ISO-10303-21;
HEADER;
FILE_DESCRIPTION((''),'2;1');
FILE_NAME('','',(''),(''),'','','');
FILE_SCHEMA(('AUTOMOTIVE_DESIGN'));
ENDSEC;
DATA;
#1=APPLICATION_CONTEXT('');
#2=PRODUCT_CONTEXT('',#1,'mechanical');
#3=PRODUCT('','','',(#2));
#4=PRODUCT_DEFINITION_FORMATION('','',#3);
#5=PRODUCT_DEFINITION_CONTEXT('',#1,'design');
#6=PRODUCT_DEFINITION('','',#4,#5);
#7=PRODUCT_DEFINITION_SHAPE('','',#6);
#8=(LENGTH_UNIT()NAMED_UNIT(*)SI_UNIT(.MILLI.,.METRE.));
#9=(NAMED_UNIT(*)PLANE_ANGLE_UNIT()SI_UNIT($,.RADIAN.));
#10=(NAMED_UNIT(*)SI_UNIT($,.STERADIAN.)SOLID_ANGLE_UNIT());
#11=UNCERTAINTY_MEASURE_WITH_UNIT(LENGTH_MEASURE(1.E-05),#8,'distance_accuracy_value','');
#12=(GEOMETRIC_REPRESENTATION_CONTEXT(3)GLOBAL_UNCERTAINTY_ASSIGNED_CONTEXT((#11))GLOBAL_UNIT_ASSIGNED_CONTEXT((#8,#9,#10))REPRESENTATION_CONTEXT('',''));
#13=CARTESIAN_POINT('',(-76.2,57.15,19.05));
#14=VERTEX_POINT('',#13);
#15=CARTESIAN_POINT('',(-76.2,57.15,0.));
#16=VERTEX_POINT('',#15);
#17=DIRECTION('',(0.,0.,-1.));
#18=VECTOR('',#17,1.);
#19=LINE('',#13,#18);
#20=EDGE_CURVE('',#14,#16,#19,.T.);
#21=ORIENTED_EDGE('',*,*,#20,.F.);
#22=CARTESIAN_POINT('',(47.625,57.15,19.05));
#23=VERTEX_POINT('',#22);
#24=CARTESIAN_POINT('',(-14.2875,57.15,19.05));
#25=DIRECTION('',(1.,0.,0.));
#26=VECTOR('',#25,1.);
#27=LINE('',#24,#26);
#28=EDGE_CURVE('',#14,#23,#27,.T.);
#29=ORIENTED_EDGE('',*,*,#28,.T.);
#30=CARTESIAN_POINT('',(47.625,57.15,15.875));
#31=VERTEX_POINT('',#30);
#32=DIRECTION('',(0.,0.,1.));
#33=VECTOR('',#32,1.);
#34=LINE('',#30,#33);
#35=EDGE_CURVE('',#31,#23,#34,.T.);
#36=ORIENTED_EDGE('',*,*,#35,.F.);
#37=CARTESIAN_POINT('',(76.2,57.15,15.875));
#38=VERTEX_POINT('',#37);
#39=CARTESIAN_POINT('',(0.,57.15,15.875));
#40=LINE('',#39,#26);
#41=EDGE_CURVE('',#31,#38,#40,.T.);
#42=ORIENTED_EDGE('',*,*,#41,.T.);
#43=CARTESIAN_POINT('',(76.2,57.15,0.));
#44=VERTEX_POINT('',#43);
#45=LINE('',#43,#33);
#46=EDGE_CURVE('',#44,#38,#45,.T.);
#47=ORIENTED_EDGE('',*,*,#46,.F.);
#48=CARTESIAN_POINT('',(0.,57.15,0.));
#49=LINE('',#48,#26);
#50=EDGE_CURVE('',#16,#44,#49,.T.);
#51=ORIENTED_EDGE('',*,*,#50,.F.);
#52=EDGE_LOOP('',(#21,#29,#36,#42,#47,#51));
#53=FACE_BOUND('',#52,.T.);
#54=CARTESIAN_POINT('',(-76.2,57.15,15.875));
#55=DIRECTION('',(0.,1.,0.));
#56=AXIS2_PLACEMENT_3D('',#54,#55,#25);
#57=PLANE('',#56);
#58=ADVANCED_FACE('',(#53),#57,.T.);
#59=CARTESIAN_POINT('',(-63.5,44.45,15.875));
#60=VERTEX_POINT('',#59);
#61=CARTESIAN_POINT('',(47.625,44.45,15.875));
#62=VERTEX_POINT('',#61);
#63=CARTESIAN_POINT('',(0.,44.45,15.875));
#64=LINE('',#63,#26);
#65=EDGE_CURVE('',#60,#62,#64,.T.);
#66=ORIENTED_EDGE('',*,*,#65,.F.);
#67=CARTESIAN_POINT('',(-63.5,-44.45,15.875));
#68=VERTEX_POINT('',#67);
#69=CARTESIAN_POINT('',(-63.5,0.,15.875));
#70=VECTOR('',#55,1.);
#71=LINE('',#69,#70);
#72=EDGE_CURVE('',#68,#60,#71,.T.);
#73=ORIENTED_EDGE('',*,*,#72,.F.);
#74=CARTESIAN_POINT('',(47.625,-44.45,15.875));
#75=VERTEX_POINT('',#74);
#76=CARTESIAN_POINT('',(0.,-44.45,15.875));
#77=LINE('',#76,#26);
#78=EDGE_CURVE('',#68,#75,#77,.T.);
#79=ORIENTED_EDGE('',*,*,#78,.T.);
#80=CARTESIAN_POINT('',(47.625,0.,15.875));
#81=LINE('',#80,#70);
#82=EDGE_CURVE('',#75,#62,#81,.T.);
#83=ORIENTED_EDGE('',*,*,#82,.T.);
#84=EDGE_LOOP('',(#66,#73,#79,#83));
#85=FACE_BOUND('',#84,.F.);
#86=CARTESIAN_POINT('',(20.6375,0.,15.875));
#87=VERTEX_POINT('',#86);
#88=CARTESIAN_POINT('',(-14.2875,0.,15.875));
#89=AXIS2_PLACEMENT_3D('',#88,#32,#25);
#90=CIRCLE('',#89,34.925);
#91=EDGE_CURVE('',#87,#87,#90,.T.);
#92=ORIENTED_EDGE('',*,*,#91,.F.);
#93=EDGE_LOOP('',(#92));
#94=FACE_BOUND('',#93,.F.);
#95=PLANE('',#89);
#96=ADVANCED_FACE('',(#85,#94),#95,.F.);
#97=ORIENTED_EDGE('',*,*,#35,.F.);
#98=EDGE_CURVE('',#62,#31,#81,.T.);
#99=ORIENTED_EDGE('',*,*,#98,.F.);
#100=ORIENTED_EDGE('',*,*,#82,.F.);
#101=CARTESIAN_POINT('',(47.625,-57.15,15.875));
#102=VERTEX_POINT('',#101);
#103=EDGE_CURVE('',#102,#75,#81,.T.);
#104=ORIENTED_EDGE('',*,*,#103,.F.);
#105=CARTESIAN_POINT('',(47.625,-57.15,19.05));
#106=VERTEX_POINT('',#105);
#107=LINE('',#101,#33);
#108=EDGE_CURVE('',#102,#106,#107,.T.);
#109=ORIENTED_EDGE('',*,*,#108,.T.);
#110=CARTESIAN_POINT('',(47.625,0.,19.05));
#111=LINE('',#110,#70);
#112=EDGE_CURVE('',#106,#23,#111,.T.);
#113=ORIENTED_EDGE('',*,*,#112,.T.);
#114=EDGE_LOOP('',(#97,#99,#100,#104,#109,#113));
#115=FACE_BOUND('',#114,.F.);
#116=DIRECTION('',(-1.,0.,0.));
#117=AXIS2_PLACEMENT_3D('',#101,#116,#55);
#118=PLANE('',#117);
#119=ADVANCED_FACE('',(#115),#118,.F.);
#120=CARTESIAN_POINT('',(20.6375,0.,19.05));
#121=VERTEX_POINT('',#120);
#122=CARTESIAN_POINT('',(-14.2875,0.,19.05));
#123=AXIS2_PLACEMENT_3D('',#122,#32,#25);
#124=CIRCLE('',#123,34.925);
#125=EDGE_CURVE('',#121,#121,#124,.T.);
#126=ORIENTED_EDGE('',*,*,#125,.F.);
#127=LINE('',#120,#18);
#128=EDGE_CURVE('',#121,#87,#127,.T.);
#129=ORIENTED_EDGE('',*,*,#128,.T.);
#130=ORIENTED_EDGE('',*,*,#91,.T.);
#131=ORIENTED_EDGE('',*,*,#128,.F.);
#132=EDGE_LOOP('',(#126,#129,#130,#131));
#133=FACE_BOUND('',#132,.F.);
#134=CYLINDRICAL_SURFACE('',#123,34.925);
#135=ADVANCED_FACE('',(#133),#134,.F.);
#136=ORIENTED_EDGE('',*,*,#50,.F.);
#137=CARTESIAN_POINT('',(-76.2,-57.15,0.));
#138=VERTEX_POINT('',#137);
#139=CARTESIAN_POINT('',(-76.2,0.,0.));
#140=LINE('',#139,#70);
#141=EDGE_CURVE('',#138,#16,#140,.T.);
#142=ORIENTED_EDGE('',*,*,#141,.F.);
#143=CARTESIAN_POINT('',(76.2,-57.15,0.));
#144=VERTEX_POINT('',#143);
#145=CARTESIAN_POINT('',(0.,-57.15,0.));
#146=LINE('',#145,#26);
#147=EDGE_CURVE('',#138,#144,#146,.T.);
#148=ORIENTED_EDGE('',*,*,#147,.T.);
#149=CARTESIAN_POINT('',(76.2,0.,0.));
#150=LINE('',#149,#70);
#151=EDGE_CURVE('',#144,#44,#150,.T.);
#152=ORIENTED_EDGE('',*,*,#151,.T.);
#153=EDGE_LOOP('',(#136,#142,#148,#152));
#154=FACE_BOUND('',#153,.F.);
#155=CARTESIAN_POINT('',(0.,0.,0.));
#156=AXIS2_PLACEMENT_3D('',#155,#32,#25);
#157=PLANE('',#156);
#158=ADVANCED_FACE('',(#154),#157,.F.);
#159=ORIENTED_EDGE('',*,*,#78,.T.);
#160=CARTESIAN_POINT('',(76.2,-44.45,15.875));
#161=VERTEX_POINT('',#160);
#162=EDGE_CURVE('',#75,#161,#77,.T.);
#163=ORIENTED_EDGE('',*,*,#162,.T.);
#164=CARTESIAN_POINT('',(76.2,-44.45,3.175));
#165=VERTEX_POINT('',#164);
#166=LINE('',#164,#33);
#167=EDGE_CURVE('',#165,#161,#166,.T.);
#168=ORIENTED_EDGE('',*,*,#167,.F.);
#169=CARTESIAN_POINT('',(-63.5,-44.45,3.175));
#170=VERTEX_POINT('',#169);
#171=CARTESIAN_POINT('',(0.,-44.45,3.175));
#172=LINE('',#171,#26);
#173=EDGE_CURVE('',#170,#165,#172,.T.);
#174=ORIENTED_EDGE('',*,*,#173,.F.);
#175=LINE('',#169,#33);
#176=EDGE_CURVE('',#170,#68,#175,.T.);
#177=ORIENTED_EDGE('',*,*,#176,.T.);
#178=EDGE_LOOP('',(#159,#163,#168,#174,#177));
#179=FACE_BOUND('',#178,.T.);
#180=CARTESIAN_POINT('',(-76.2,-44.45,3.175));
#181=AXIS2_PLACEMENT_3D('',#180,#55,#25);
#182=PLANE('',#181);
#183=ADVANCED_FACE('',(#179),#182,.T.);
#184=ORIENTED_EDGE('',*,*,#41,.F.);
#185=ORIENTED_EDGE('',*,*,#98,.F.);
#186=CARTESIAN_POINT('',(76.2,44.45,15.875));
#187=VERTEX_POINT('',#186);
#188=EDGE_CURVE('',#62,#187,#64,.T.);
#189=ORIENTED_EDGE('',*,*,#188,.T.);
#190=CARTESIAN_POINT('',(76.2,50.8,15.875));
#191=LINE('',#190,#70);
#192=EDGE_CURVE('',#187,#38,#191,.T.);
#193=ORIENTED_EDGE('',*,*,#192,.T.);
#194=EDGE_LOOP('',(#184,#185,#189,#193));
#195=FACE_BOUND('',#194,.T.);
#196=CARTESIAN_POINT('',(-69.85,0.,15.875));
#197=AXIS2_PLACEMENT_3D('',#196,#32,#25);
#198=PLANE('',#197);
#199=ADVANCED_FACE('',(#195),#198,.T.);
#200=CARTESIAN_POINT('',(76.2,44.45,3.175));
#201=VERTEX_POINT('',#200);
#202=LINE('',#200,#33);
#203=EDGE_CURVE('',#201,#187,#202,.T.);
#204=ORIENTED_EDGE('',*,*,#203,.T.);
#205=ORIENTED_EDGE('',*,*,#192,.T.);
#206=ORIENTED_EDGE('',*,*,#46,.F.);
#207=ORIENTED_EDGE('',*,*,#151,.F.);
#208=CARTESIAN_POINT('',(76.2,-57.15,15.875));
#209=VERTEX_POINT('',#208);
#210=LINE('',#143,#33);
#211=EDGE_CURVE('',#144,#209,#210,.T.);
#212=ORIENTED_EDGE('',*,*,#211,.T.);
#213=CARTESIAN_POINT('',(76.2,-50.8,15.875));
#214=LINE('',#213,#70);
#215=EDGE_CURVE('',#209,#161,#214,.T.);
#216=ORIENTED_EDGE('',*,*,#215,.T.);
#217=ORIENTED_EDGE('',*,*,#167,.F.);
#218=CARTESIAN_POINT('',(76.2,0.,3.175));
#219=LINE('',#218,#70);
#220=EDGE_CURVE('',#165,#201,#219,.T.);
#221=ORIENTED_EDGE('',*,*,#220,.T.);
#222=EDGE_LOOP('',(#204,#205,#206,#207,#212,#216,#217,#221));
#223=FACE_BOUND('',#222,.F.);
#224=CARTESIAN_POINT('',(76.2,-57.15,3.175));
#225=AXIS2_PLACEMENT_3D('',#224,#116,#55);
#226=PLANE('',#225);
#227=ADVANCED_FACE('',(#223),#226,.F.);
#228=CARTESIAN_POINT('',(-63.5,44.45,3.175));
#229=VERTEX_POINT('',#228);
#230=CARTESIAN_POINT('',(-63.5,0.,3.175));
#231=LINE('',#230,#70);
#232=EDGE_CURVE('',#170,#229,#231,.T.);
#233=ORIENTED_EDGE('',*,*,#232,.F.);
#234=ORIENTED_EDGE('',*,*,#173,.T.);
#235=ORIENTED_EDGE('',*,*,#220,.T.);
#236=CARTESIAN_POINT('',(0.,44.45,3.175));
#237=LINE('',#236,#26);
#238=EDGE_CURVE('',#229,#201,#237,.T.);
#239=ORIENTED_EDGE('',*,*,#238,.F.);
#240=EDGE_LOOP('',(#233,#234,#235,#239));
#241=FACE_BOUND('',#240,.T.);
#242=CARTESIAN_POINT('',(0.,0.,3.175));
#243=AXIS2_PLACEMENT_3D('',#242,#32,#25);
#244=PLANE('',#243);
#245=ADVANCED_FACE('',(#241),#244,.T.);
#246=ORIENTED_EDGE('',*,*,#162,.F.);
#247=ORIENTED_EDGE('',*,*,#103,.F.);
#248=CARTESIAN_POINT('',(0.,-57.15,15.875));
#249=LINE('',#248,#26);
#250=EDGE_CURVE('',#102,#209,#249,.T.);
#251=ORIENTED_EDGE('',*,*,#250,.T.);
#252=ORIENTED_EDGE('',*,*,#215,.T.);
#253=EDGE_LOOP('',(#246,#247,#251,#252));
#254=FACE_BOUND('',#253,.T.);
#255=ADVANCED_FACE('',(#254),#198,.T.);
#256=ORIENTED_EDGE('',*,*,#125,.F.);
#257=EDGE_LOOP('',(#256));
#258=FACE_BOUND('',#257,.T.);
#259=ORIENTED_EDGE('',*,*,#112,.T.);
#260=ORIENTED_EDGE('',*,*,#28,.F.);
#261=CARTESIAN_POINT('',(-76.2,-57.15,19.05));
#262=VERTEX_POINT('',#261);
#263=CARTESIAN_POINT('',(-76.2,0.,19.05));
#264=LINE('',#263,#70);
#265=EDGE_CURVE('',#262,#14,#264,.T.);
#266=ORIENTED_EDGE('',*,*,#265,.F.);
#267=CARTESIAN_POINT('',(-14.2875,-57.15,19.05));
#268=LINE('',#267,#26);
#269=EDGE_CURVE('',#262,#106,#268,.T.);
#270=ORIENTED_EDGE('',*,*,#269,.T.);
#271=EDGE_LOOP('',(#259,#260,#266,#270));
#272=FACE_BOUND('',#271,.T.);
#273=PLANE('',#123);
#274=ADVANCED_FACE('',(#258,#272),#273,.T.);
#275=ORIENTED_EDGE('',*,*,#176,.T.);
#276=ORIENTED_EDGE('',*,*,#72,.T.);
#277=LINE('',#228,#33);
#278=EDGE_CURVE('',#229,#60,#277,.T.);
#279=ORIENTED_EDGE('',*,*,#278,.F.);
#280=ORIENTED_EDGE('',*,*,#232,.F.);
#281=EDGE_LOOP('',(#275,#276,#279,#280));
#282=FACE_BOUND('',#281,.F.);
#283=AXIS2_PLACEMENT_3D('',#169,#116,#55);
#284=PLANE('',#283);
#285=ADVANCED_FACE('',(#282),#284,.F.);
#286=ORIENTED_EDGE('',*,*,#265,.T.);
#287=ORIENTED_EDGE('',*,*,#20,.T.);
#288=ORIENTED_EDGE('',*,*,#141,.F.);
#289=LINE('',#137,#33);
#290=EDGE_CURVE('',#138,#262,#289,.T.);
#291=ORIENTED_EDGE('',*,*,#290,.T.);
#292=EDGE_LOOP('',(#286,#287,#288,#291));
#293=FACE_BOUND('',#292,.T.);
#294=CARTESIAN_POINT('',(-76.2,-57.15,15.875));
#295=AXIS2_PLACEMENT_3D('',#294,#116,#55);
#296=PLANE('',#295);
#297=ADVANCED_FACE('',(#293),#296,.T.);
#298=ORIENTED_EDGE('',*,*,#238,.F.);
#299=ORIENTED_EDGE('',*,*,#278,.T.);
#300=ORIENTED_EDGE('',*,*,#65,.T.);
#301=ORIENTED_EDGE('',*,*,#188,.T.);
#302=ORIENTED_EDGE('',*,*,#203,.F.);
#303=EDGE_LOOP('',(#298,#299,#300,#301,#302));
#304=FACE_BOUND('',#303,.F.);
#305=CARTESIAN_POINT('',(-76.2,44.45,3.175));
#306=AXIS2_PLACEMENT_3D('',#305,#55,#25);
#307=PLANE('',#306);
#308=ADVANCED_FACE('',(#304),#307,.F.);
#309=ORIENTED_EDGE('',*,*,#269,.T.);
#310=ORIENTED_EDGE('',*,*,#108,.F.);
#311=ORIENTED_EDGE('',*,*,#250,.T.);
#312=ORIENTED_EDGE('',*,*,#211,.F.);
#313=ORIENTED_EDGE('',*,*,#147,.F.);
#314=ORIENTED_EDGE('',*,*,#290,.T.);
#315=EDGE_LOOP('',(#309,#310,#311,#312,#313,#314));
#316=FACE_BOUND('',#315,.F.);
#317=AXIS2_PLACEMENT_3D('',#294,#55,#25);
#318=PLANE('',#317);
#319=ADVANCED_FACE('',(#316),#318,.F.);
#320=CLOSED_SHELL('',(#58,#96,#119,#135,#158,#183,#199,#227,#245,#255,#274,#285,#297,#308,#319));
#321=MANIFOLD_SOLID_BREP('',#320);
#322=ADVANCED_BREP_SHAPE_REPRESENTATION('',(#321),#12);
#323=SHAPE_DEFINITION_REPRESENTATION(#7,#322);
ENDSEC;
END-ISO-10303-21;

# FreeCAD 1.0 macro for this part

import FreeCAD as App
import Part
import Sketcher
Q = App.Units.Quantity


def add_polygon(sketch, points):
    """Adds a closed chain of lines whose ends are joined by coincident constraints."""
    first, n = sketch.GeometryCount, len(points)
    for a, b in zip(points, points[1:] + points[:1]):
        sketch.addGeometry(Part.LineSegment(App.Vector(*a, 0), App.Vector(*b, 0)), False)
    for i in range(n):
        sketch.addConstraint(Sketcher.Constraint("Coincident", first + i, 2, first + (i + 1) % n, 1))

doc = App.newDocument("Part")
body = doc.addObject("PartDesign::Body", "Body")

# Sketch on XY plane
sketch1 = body.newObject("Sketcher::SketchObject", "Sketch")
sketch1.AttachmentSupport = (doc.getObject("XY_Plane"), [""])
sketch1.MapMode = "FlatFace"
add_polygon(sketch1, [(-76.2, 57.15), (-76.2, -57.15), (76.2, -57.15), (76.2, 57.15)])  # lines 0-3
sketch1.addConstraint([
    Sketcher.Constraint("Vertical", 0),
    Sketcher.Constraint("Horizontal", 1),
    Sketcher.Constraint("Vertical", 2),
    Sketcher.Constraint("Horizontal", 3),
    Sketcher.Constraint("Symmetric", 0, 2, 2, 2, -1, 1),
    Sketcher.Constraint("DistanceX", 1, 1, 1, 2, Q("6 in")),
    Sketcher.Constraint("DistanceY", 0, 2, 0, 1, Q("4.5 in")),
])
pad1 = body.newObject("PartDesign::Pad", "Pad")
pad1.Profile = sketch1
pad1.Length = Q("0.125 in")

# Sketch on XY plane
sketch2 = body.newObject("Sketcher::SketchObject", "Sketch001")
sketch2.AttachmentSupport = (doc.getObject("XY_Plane"), [""])
sketch2.MapMode = "FlatFace"
sketch2.AttachmentOffset = App.Placement(App.Vector(0, 0, 0.125 * 25.4), App.Rotation())
add_polygon(sketch2, [(-76.2, -44.45), (-76.2, -57.15), (76.2, -57.15), (76.2, -44.45)])  # lines 0-3
add_polygon(sketch2, [(-76.2, 57.15), (-76.2, 44.45), (76.2, 44.45), (76.2, 57.15)])  # lines 4-7
sketch2.addConstraint([
    Sketcher.Constraint("Vertical", 0),
    Sketcher.Constraint("Horizontal", 1),
    Sketcher.Constraint("Vertical", 2),
    Sketcher.Constraint("Horizontal", 3),
    Sketcher.Constraint("Vertical", 4),
    Sketcher.Constraint("Horizontal", 5),
    Sketcher.Constraint("Vertical", 6),
    Sketcher.Constraint("Horizontal", 7),
    Sketcher.Constraint("Symmetric", 2, 2, 4, 2, -1, 1),
    Sketcher.Constraint("Symmetric", 0, 2, 6, 2, -1, 1),
    Sketcher.Constraint("Vertical", 3, 2, 4, 2),
    Sketcher.Constraint("DistanceX", 1, 1, 1, 2, Q("6 in")),
    Sketcher.Constraint("DistanceY", 0, 2, 0, 1, Q("0.5 in")),
    Sketcher.Constraint("DistanceY", 0, 2, 4, 2, Q("4 in")),
])
pad2 = body.newObject("PartDesign::Pad", "Pad001")
pad2.Profile = sketch2
pad2.Length = Q("0.5 in")

# Sketch on XY plane
sketch3 = body.newObject("Sketcher::SketchObject", "Sketch002")
sketch3.AttachmentSupport = (doc.getObject("XY_Plane"), [""])
sketch3.MapMode = "FlatFace"
sketch3.AttachmentOffset = App.Placement(App.Vector(0, 0, 0.125 * 25.4), App.Rotation())
add_polygon(sketch3, [(-76.2, 44.45), (-76.2, -44.45), (-63.5, -44.45), (-63.5, 44.45)])  # lines 0-3
sketch3.addConstraint([
    Sketcher.Constraint("Vertical", 0),
    Sketcher.Constraint("Horizontal", 1),
    Sketcher.Constraint("Vertical", 2),
    Sketcher.Constraint("Horizontal", 3),
    Sketcher.Constraint("DistanceX", 1, 1, 1, 2, Q("0.5 in")),
    Sketcher.Constraint("DistanceY", 0, 2, 0, 1, Q("3.5 in")),
    Sketcher.Constraint("DistanceX", 0, 2, -1, 1, Q("3 in")),
    Sketcher.Constraint("DistanceY", 0, 2, -1, 1, Q("1.75 in")),
])
pad3 = body.newObject("PartDesign::Pad", "Pad002")
pad3.Profile = sketch3
pad3.Length = Q("0.5 in")

# Sketch on XY plane
sketch4 = body.newObject("Sketcher::SketchObject", "Sketch003")
sketch4.AttachmentSupport = (doc.getObject("XY_Plane"), [""])
sketch4.MapMode = "FlatFace"
sketch4.AttachmentOffset = App.Placement(App.Vector(0, 0, 0.625 * 25.4), App.Rotation())
add_polygon(sketch4, [(-76.2, 57.15), (-76.2, -57.15), (47.625, -57.15), (47.625, 57.15)])  # lines 0-3
sketch4.addConstraint([
    Sketcher.Constraint("Vertical", 0),
    Sketcher.Constraint("Horizontal", 1),
    Sketcher.Constraint("Vertical", 2),
    Sketcher.Constraint("Horizontal", 3),
    Sketcher.Constraint("DistanceY", 0, 2, 0, 1, Q("4.5 in")),
    Sketcher.Constraint("DistanceX", 0, 2, -1, 1, Q("3 in")),
    Sketcher.Constraint("DistanceX", 1, 1, 1, 2, Q("4.875 in")),
    Sketcher.Constraint("DistanceY", 0, 2, -1, 1, Q("2.25 in")),
])
pad4 = body.newObject("PartDesign::Pad", "Pad003")
pad4.Profile = sketch4
pad4.Length = Q("0.125 in")

# Sketch on XY plane
sketch5 = body.newObject("Sketcher::SketchObject", "Sketch004")
sketch5.AttachmentSupport = (doc.getObject("XY_Plane"), [""])
sketch5.MapMode = "FlatFace"
sketch5.AttachmentOffset = App.Placement(App.Vector(0, 0, 0.75 * 25.4), App.Rotation())
sketch5.addGeometry(Part.Circle(App.Vector(-14.2875, 0, 0), App.Vector(0, 0, 1), 34.925), False)
sketch5.addConstraint([
    Sketcher.Constraint("PointOnObject", 0, 3, -1),
    Sketcher.Constraint("Diameter", 0, Q("2.75 in")),
    Sketcher.Constraint("DistanceX", 0, 3, -1, 1, Q("0.5625 in")),
])
pocket1 = body.newObject("PartDesign::Pocket", "Pocket")
pocket1.Profile = sketch5
pocket1.Length = Q("0.125 in")

doc.recompute()
